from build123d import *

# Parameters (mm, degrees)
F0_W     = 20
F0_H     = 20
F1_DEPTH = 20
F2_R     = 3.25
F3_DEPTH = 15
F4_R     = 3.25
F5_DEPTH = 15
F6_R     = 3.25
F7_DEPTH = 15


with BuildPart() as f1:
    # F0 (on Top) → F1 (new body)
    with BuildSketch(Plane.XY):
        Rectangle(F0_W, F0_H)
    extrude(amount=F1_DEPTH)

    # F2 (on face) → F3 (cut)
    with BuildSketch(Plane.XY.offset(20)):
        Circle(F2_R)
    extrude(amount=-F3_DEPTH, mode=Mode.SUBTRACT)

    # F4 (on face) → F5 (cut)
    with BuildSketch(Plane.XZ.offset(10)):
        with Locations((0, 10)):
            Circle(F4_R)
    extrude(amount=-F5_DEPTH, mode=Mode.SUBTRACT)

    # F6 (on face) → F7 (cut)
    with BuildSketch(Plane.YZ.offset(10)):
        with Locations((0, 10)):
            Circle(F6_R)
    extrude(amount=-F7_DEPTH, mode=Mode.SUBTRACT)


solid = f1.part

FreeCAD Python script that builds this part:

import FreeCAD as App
import Part
import Sketcher

doc = App.newDocument("Part")
body = doc.addObject("PartDesign::Body", "Body")

# Sketch on XY plane
sketch1 = body.newObject("Sketcher::SketchObject", "Sketch")
sketch1.AttachmentSupport = (doc.getObject("XY_Plane"), [""])
sketch1.MapMode = "FlatFace"
sketch1.addGeometry(Part.LineSegment(App.Vector(-10, 10, 0), App.Vector(-10, -10, 0)), False)
sketch1.addGeometry(Part.LineSegment(App.Vector(-10, -10, 0), App.Vector(10, -10, 0)), False)
sketch1.addGeometry(Part.LineSegment(App.Vector(10, -10, 0), App.Vector(10, 10, 0)), False)
sketch1.addGeometry(Part.LineSegment(App.Vector(10, 10, 0), App.Vector(-10, 10, 0)), False)
sketch1.addConstraint(Sketcher.Constraint("Coincident", 0, 2, 1, 1))
sketch1.addConstraint(Sketcher.Constraint("Coincident", 1, 2, 2, 1))
sketch1.addConstraint(Sketcher.Constraint("Coincident", 2, 2, 3, 1))
sketch1.addConstraint(Sketcher.Constraint("Coincident", 3, 2, 0, 1))
sketch1.addConstraint(Sketcher.Constraint("Vertical", 0))
sketch1.addConstraint(Sketcher.Constraint("Horizontal", 1))
sketch1.addConstraint(Sketcher.Constraint("Vertical", 2))
sketch1.addConstraint(Sketcher.Constraint("Horizontal", 3))
sketch1.addConstraint(Sketcher.Constraint("Symmetric", 0, 2, 2, 2, -1, 1))
sketch1.addConstraint(Sketcher.Constraint("Equal", 3, 0))
sketch1.addConstraint(Sketcher.Constraint("DistanceX", 1, 1, 1, 2, 20.0))
pad1 = body.newObject("PartDesign::Pad", "Pad")
pad1.Profile = sketch1
pad1.Length = 20

# Sketch on XY plane
sketch2 = body.newObject("Sketcher::SketchObject", "Sketch001")
sketch2.AttachmentSupport = (doc.getObject("XY_Plane"), [""])
sketch2.MapMode = "FlatFace"
sketch2.AttachmentOffset = App.Placement(App.Vector(0, 0, 20), App.Rotation())
sketch2.addGeometry(Part.Circle(App.Vector(0, 0, 0), App.Vector(0, 0, 1), 3.2), False)
sketch2.addConstraint(Sketcher.Constraint("Coincident", 0, 3, -1, 1))
sketch2.addConstraint(Sketcher.Constraint("Diameter", 0, 6.5))
pocket1 = body.newObject("PartDesign::Pocket", "Pocket")
pocket1.Profile = sketch2
pocket1.Length = 15

# Sketch on XZ plane
sketch3 = body.newObject("Sketcher::SketchObject", "Sketch002")
sketch3.AttachmentSupport = (doc.getObject("XZ_Plane"), [""])
sketch3.MapMode = "FlatFace"
sketch3.AttachmentOffset = App.Placement(App.Vector(0, 0, 10), App.Rotation())
sketch3.addGeometry(Part.Circle(App.Vector(0, 10, 0), App.Vector(0, 0, 1), 3.2), False)
sketch3.addConstraint(Sketcher.Constraint("PointOnObject", 0, 3, -2))
sketch3.addConstraint(Sketcher.Constraint("Diameter", 0, 6.5))
sketch3.addConstraint(Sketcher.Constraint("DistanceY", -1, 1, 0, 3, 10.0))
pocket2 = body.newObject("PartDesign::Pocket", "Pocket001")
pocket2.Profile = sketch3
pocket2.Length = 15

# Sketch on YZ plane
sketch4 = body.newObject("Sketcher::SketchObject", "Sketch003")
sketch4.AttachmentSupport = (doc.getObject("YZ_Plane"), [""])
sketch4.MapMode = "FlatFace"
sketch4.AttachmentOffset = App.Placement(App.Vector(0, 0, 10), App.Rotation())
sketch4.addGeometry(Part.Circle(App.Vector(0, 10, 0), App.Vector(0, 0, 1), 3.2), False)
sketch4.addConstraint(Sketcher.Constraint("PointOnObject", 0, 3, -2))
sketch4.addConstraint(Sketcher.Constraint("Diameter", 0, 6.5))
sketch4.addConstraint(Sketcher.Constraint("DistanceY", -1, 1, 0, 3, 10.0))
pocket3 = body.newObject("PartDesign::Pocket", "Pocket002")
pocket3.Profile = sketch4
pocket3.Length = 15

doc.recompute()
